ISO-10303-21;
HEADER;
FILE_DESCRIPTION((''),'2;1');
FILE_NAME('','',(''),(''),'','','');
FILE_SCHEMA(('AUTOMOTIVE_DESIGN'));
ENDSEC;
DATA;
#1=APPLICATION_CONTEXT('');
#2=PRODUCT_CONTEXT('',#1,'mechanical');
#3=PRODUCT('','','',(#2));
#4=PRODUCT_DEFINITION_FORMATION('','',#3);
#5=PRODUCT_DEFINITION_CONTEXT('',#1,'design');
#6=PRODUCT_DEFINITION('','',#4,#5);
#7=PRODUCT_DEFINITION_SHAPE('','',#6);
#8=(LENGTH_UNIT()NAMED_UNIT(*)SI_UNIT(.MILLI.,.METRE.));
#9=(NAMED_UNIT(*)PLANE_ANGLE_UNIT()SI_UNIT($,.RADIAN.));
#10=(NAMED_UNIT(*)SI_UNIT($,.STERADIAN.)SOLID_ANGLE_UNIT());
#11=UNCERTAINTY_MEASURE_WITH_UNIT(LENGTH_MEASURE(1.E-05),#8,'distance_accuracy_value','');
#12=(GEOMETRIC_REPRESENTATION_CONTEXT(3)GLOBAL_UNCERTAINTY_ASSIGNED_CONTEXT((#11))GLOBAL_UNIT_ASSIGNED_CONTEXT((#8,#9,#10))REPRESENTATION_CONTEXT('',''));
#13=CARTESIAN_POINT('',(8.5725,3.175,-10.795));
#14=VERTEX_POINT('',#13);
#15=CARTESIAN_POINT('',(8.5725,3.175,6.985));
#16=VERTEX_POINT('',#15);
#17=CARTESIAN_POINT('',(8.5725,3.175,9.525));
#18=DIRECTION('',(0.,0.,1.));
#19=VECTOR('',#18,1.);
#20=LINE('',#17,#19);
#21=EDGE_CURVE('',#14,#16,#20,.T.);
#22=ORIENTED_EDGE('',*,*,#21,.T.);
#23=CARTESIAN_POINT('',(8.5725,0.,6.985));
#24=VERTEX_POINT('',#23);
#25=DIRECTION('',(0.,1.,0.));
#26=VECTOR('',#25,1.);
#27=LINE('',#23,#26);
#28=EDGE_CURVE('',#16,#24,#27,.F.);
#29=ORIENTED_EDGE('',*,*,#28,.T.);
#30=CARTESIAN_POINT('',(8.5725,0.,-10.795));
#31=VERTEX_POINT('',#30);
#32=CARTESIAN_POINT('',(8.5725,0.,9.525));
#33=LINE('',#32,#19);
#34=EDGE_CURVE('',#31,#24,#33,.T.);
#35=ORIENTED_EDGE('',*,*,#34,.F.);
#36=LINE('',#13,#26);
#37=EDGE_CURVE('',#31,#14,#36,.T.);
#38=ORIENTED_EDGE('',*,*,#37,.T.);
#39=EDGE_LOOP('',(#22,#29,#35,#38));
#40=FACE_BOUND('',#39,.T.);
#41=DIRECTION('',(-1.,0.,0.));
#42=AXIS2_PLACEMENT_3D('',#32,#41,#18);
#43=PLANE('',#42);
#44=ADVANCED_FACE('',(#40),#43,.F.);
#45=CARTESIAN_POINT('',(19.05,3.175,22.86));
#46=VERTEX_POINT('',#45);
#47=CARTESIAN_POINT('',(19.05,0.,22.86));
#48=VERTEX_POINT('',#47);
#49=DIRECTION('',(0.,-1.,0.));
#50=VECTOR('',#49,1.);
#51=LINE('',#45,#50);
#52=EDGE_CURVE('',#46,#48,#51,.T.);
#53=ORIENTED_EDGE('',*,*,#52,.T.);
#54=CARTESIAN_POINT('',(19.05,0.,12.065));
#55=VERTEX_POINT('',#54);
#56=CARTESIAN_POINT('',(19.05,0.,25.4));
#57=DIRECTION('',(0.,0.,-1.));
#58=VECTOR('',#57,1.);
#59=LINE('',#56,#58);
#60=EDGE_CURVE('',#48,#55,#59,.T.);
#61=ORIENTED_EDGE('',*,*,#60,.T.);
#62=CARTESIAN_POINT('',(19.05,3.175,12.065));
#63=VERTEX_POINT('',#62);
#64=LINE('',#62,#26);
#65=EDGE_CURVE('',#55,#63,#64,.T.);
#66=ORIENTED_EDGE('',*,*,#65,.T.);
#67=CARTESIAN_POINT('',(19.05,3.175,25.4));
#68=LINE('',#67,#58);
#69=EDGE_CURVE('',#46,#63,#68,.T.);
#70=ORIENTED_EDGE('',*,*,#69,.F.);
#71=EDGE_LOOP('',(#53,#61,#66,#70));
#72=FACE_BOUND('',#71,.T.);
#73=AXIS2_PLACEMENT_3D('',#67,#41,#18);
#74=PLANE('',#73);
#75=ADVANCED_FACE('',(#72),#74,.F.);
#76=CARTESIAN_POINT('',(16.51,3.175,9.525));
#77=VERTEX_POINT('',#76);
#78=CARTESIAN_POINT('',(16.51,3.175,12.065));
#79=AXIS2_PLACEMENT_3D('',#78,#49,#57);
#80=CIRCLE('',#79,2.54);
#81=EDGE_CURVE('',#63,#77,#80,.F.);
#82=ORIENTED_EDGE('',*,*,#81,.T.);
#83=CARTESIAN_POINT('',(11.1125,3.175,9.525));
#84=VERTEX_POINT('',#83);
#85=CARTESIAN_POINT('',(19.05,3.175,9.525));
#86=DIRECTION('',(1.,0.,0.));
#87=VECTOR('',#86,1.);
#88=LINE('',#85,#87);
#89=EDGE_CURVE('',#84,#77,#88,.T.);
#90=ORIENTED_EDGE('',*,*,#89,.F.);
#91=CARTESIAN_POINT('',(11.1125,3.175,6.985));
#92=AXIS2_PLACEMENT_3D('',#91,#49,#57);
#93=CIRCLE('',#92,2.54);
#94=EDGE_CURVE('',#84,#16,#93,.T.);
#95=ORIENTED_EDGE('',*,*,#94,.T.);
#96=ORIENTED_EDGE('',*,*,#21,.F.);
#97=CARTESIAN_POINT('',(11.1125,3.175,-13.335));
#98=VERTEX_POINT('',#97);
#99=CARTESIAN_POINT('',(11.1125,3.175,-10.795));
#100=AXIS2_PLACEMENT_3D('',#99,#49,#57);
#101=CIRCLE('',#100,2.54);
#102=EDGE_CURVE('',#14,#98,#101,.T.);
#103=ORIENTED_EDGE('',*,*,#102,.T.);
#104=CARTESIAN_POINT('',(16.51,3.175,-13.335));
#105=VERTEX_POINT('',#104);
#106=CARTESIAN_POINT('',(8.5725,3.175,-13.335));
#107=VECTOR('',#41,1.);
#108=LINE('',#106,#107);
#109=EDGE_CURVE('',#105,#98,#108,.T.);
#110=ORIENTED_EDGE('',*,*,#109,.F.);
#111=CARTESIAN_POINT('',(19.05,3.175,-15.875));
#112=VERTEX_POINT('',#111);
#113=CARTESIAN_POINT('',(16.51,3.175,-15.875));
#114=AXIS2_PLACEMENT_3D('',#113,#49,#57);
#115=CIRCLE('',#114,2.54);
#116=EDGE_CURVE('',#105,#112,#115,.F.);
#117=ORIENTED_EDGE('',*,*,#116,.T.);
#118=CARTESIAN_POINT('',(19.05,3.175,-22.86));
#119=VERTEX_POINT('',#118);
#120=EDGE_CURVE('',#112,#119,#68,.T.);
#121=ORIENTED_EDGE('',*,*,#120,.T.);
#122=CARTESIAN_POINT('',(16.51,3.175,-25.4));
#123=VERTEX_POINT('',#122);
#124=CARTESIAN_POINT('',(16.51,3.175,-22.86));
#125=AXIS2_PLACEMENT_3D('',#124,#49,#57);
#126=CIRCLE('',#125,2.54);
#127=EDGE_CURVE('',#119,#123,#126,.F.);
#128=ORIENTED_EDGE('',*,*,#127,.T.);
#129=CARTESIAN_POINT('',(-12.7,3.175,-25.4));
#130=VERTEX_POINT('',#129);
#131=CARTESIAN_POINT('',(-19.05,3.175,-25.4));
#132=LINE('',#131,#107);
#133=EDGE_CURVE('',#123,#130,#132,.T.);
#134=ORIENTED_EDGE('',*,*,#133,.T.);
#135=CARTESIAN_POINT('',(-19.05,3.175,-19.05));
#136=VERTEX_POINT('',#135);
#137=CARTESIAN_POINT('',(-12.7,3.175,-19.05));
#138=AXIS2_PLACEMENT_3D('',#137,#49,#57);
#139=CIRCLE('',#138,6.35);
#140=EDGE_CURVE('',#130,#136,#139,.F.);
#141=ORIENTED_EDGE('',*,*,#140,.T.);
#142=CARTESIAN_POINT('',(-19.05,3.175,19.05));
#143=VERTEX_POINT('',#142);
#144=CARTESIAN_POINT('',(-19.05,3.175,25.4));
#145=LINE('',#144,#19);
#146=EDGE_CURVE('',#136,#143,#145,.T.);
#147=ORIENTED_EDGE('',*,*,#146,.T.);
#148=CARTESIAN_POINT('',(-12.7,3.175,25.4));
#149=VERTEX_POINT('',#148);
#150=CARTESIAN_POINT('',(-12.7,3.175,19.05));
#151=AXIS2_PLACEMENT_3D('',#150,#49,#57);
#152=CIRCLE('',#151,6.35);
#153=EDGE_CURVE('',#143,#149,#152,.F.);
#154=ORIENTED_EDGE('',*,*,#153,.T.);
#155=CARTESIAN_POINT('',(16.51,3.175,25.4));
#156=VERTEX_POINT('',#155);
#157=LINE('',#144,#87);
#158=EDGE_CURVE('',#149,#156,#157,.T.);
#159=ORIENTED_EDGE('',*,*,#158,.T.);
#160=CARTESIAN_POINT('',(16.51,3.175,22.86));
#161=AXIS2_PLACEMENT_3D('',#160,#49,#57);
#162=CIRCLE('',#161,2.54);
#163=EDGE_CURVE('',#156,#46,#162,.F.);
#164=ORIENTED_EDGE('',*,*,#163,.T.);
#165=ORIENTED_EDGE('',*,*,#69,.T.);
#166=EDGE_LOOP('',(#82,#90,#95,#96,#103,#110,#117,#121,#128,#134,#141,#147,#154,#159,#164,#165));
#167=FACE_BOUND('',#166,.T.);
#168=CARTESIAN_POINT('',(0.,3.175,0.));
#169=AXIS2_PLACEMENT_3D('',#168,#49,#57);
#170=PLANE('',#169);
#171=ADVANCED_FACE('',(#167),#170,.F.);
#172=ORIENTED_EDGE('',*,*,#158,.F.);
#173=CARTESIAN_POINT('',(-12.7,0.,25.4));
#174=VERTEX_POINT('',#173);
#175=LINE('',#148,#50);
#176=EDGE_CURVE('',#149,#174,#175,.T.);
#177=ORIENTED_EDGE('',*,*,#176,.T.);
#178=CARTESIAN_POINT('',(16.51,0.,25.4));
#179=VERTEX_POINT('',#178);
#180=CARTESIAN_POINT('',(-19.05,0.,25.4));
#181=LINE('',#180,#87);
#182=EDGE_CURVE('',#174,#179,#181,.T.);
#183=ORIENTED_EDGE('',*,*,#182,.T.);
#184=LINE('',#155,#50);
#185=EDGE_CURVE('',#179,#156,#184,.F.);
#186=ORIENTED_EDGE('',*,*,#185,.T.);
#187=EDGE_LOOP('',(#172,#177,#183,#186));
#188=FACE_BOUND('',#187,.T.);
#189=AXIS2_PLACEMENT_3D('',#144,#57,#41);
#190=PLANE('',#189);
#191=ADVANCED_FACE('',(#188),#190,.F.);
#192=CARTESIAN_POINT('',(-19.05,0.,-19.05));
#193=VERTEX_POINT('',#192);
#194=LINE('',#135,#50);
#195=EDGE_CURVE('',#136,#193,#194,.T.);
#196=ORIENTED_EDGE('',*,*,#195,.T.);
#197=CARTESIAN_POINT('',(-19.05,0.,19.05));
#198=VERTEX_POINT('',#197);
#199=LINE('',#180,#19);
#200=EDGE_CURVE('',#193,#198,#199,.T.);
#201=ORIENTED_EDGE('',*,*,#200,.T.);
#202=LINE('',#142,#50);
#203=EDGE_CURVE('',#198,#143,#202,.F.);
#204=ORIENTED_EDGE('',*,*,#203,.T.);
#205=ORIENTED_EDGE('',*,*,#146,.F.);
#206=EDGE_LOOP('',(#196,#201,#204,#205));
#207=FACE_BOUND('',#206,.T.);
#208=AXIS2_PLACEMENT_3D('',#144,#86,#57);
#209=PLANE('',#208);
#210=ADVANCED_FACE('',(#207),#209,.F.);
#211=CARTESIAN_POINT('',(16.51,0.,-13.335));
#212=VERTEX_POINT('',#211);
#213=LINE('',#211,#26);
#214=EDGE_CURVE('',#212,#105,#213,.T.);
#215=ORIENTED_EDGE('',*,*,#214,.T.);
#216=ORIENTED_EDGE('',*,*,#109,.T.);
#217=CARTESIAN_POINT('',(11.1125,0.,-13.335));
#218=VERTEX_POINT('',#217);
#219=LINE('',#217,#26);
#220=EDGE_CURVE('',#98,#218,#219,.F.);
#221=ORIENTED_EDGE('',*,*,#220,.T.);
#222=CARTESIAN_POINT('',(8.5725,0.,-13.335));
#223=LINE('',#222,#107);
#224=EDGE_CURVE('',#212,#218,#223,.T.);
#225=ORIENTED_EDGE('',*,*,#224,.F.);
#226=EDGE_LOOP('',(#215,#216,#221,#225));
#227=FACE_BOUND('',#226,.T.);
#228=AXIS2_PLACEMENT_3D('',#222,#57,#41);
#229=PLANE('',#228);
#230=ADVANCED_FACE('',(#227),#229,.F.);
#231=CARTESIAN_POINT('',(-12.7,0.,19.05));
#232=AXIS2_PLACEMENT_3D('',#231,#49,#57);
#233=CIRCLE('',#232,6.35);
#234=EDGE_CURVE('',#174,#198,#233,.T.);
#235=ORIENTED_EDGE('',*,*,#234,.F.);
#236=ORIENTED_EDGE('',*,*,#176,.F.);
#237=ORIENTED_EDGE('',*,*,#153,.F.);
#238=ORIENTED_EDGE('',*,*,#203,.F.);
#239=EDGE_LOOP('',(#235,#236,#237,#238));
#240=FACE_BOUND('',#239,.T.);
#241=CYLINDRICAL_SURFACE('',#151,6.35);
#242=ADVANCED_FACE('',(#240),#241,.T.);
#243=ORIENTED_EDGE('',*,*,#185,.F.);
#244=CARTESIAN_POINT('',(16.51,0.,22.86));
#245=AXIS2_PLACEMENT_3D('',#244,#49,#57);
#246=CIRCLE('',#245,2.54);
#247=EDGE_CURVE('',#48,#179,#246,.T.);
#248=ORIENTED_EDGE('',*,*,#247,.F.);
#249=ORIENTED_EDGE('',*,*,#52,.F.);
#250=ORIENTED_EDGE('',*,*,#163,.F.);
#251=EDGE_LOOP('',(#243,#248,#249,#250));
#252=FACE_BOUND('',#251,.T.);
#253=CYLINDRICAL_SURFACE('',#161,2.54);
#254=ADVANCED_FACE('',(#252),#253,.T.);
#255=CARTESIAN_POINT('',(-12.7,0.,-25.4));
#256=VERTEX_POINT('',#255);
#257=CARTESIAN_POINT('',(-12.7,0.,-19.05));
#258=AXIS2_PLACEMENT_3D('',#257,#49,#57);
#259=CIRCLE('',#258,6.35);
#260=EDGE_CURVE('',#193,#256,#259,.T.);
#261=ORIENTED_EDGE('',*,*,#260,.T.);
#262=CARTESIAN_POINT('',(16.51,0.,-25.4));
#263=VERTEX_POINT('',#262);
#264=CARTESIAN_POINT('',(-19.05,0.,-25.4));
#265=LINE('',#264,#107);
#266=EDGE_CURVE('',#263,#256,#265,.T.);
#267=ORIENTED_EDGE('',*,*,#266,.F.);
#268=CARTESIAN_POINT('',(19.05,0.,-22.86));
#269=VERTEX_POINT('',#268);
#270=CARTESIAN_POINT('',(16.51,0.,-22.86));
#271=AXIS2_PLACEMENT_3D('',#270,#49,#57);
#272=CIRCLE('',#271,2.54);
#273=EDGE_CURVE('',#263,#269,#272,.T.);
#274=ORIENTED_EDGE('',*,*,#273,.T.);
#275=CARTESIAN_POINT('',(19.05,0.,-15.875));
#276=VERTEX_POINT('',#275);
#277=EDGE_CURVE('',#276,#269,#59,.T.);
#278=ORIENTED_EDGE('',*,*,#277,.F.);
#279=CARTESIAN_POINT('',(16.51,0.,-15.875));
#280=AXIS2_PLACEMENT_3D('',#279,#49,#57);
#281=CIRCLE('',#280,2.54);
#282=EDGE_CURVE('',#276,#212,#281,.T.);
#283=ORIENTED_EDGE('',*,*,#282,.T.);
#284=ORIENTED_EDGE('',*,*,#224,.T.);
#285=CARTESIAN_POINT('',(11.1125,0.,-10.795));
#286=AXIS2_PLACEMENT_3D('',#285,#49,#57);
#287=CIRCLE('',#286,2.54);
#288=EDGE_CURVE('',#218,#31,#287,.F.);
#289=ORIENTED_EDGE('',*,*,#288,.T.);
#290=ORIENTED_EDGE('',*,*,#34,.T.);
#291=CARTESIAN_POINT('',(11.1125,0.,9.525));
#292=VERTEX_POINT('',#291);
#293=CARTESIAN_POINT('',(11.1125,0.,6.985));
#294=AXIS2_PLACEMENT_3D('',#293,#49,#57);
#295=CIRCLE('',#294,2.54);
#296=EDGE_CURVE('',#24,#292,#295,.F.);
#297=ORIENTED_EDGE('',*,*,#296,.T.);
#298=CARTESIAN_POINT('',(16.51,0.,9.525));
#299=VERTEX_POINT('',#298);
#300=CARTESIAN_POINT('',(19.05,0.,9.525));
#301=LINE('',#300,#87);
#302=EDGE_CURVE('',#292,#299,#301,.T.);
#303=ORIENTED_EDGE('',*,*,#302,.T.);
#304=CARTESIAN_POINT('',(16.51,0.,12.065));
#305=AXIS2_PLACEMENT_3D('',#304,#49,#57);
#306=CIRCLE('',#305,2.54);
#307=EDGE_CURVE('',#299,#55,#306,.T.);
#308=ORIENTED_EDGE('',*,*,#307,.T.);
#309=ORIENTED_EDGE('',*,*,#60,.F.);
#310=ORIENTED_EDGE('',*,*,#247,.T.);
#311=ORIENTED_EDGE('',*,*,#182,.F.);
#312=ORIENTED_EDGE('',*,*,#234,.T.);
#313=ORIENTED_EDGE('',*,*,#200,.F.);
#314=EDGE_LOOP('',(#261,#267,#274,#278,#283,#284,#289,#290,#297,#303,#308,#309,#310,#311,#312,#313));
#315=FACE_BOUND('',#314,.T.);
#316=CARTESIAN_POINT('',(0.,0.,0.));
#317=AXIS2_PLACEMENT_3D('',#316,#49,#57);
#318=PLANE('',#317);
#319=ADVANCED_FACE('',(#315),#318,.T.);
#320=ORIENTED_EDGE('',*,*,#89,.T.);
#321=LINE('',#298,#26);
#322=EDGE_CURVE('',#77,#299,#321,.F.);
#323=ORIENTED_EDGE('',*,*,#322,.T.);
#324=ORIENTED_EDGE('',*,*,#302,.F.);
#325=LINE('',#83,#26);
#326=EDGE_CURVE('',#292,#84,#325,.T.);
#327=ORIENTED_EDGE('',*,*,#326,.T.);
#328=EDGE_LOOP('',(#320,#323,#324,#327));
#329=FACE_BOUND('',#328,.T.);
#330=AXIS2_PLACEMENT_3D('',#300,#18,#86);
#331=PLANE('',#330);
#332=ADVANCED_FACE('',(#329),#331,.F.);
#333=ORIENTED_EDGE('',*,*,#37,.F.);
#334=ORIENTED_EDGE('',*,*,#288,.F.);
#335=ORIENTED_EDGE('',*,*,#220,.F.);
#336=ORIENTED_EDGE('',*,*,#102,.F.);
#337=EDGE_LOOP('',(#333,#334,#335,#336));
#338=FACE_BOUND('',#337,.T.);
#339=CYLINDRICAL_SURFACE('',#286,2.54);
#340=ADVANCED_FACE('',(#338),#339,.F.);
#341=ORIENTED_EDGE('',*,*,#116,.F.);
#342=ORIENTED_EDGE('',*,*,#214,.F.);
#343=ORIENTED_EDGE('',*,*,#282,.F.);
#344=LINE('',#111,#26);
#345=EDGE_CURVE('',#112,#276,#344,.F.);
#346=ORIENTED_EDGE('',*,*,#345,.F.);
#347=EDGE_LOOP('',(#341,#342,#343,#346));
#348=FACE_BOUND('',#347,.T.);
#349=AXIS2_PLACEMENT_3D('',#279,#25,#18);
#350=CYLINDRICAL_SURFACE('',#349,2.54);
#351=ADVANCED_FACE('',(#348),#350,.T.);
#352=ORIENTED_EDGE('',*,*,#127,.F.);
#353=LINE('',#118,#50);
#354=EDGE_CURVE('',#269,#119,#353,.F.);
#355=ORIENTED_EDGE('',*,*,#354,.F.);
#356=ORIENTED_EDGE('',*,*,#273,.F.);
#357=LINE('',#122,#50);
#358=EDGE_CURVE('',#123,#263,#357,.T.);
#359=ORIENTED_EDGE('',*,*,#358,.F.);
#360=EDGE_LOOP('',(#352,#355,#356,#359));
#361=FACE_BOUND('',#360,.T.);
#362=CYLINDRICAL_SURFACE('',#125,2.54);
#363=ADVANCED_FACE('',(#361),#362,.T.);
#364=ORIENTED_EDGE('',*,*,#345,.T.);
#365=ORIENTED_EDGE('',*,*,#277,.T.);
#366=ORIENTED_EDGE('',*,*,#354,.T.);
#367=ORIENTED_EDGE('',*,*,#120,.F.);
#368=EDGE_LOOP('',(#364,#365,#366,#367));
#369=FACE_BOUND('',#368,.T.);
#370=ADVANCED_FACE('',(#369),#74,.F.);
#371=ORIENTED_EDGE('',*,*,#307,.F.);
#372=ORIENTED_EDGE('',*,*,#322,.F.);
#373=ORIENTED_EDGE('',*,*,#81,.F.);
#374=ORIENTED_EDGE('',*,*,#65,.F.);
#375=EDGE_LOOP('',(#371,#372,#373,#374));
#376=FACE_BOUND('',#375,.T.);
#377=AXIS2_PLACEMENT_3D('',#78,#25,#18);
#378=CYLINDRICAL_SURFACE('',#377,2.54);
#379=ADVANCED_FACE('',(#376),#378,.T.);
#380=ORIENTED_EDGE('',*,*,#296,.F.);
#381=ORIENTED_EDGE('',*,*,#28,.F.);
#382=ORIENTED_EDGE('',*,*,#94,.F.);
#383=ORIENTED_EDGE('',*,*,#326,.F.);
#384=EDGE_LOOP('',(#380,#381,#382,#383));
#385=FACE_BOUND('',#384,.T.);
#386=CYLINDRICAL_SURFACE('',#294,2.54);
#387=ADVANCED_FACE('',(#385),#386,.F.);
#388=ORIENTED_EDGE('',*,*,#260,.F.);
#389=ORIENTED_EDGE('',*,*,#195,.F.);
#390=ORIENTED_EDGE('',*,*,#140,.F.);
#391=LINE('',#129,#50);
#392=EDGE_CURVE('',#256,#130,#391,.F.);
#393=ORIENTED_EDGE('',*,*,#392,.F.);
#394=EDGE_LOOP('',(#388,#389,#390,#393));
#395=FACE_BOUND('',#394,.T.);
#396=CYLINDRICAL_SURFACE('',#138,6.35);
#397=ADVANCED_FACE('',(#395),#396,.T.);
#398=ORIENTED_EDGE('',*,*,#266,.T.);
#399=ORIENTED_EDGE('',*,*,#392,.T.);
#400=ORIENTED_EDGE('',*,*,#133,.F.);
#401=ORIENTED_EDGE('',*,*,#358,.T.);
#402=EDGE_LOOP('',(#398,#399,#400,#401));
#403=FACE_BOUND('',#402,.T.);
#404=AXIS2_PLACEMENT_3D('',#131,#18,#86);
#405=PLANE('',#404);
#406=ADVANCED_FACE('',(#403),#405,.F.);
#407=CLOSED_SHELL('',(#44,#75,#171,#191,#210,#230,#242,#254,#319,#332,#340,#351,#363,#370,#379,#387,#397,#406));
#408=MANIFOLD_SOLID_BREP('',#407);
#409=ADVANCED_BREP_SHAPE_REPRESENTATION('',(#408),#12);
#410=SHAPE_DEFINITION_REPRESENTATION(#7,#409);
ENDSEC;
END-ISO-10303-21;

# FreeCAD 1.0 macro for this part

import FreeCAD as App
import Part
import Sketcher
from FreeCAD import Vector
Q = App.Units.Quantity


def edges_at(feature, points):
    """Names of the edges that pass closest to the given points."""
    edges = feature.Shape.Edges
    near = lambda p: min(range(len(edges)), key=lambda i: edges[i].distToShape(Part.Vertex(*p))[0])
    return sorted({f"Edge{near(p) + 1}" for p in points})

doc = App.newDocument("Part")
body = doc.addObject("PartDesign::Body", "Body")

sketch1 = doc.addObject("Sketcher::SketchObject", "Sketch")
body.addObject(sketch1)
sketch1.AttachmentSupport = (doc.XZ_Plane, [""])
sketch1.MapMode = "FlatFace"
sketch1.addGeometry([
    Part.LineSegment(Vector(-19, -25, 0), Vector(-19, 25, 0)),
    Part.LineSegment(Vector(-19, 25, 0), Vector(19, 25, 0)),
    Part.LineSegment(Vector(19, 25, 0), Vector(19, -25, 0)),
    Part.LineSegment(Vector(19, -25, 0), Vector(-19, -25, 0)),
], False)
sketch1.addConstraint([
    Sketcher.Constraint("Coincident", 0, 2, 1, 1),
    Sketcher.Constraint("Coincident", 1, 2, 2, 1),
    Sketcher.Constraint("Coincident", 2, 2, 3, 1),
    Sketcher.Constraint("Coincident", 3, 2, 0, 1),
    Sketcher.Constraint("Vertical", 0),
    Sketcher.Constraint("Horizontal", 1),
    Sketcher.Constraint("Vertical", 2),
    Sketcher.Constraint("Horizontal", 3),
    Sketcher.Constraint("Symmetric", 0, 2, 2, 2, -1, 1),
    Sketcher.Constraint("DistanceY", 0, 1, 0, 2, Q("2 in")),
    Sketcher.Constraint("DistanceX", 1, 1, 1, 2, Q("1.5 in")),
])
pad1 = doc.addObject("PartDesign::Pad", "Pad")
body.addObject(pad1)
pad1.Profile = sketch1
pad1.Length = Q("0.125 in")
pad1.Reversed = True

sketch2 = doc.addObject("Sketcher::SketchObject", "Sketch001")
body.addObject(sketch2)
sketch2.AttachmentSupport = (doc.XZ_Plane, [""])
sketch2.MapMode = "FlatFace"
sketch2.AttachmentOffset = App.Placement(Vector(0, 0, -0.125 * 25.4), App.Rotation())
sketch2.addGeometry([
    Part.LineSegment(Vector(9, -13, 0), Vector(9, 10, 0)),
    Part.LineSegment(Vector(9, 10, 0), Vector(19, 10, 0)),
    Part.LineSegment(Vector(19, 10, 0), Vector(19, -13, 0)),
    Part.LineSegment(Vector(19, -13, 0), Vector(9, -13, 0)),
], False)
sketch2.addConstraint([
    Sketcher.Constraint("Coincident", 0, 2, 1, 1),
    Sketcher.Constraint("Coincident", 1, 2, 2, 1),
    Sketcher.Constraint("Coincident", 2, 2, 3, 1),
    Sketcher.Constraint("Coincident", 3, 2, 0, 1),
    Sketcher.Constraint("Vertical", 0),
    Sketcher.Constraint("Horizontal", 1),
    Sketcher.Constraint("Vertical", 2),
    Sketcher.Constraint("Horizontal", 3),
    Sketcher.Constraint("DistanceY", 0, 1, 0, 2, Q("0.9 in")),
    Sketcher.Constraint("DistanceX", -1, 1, 1, 2, Q("0.75 in")),
    Sketcher.Constraint("DistanceX", 1, 1, 1, 2, Q("0.4125 in")),
    Sketcher.Constraint("DistanceY", -1, 1, 0, 2, Q("0.375 in")),
])
pocket1 = doc.addObject("PartDesign::Pocket", "Pocket")
body.addObject(pocket1)
pocket1.Profile = sketch2
pocket1.Type = "ThroughAll"
pocket1.Reversed = True
doc.recompute()

fillet = doc.addObject("PartDesign::Fillet", "Fillet")
body.addObject(fillet)
fillet.Base = (pocket1, edges_at(pocket1, [
    (19.05, 1.587, -13.335),
    (19.05, 1.587, 9.525),
    (8.572, 1.587, 9.525),
    (8.572, 1.587, -13.335),
    (19.05, 1.587, 25.4),
    (19.05, 1.587, -25.4),
]))
fillet.Radius = Q("0.1 in")
doc.recompute()

fillet2 = doc.addObject("PartDesign::Fillet", "Fillet001")
body.addObject(fillet2)
fillet2.Base = (fillet, edges_at(fillet, [(-19.05, 1.587, 25.4), (-19.05, 1.587, -25.4)]))
fillet2.Radius = Q("0.25 in")

doc.recompute()
